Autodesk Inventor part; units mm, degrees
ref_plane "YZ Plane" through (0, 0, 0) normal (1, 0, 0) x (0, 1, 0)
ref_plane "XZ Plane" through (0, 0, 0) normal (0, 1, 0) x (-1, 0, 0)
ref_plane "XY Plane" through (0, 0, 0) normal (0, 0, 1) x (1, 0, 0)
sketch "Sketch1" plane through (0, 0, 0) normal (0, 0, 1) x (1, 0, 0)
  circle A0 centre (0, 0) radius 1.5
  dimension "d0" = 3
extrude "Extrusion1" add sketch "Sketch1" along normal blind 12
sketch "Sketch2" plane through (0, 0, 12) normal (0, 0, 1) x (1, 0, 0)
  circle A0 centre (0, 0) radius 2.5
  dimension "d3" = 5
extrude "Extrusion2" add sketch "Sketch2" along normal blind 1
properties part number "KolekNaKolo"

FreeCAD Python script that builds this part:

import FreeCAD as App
import Part
import Sketcher

V = App.Vector
Q = App.Units.Quantity

doc = App.newDocument("Part")
body = doc.addObject("PartDesign::Body", "Body")

sketch1 = body.newObject("Sketcher::SketchObject", "Sketch")
sketch1.AttachmentSupport = (doc.getObject("XY_Plane"), [""])
sketch1.MapMode = "FlatFace"
sketch1.addGeometry(Part.Circle(V(0, 0, 0), V(0, 0, 1), 1.5), False)
sketch1.addConstraint(Sketcher.Constraint("Coincident", 0, 3, -1, 1))
sketch1.addConstraint(Sketcher.Constraint("Diameter", 0, Q("3 mm")))
pad1 = body.newObject("PartDesign::Pad", "Pad")
pad1.Profile = sketch1
pad1.Length = 12

sketch2 = body.newObject("Sketcher::SketchObject", "Sketch001")
sketch2.AttachmentSupport = (doc.getObject("XY_Plane"), [""])
sketch2.MapMode = "FlatFace"
sketch2.AttachmentOffset = App.Placement(V(0, 0, 12), App.Rotation())
sketch2.addGeometry(Part.Circle(V(0, 0, 0), V(0, 0, 1), 2.5), False)
sketch2.addConstraint(Sketcher.Constraint("Coincident", 0, 3, -1, 1))
sketch2.addConstraint(Sketcher.Constraint("Diameter", 0, Q("5 mm")))
pad2 = body.newObject("PartDesign::Pad", "Pad001")
pad2.Profile = sketch2
pad2.Length = 1

doc.recompute()
